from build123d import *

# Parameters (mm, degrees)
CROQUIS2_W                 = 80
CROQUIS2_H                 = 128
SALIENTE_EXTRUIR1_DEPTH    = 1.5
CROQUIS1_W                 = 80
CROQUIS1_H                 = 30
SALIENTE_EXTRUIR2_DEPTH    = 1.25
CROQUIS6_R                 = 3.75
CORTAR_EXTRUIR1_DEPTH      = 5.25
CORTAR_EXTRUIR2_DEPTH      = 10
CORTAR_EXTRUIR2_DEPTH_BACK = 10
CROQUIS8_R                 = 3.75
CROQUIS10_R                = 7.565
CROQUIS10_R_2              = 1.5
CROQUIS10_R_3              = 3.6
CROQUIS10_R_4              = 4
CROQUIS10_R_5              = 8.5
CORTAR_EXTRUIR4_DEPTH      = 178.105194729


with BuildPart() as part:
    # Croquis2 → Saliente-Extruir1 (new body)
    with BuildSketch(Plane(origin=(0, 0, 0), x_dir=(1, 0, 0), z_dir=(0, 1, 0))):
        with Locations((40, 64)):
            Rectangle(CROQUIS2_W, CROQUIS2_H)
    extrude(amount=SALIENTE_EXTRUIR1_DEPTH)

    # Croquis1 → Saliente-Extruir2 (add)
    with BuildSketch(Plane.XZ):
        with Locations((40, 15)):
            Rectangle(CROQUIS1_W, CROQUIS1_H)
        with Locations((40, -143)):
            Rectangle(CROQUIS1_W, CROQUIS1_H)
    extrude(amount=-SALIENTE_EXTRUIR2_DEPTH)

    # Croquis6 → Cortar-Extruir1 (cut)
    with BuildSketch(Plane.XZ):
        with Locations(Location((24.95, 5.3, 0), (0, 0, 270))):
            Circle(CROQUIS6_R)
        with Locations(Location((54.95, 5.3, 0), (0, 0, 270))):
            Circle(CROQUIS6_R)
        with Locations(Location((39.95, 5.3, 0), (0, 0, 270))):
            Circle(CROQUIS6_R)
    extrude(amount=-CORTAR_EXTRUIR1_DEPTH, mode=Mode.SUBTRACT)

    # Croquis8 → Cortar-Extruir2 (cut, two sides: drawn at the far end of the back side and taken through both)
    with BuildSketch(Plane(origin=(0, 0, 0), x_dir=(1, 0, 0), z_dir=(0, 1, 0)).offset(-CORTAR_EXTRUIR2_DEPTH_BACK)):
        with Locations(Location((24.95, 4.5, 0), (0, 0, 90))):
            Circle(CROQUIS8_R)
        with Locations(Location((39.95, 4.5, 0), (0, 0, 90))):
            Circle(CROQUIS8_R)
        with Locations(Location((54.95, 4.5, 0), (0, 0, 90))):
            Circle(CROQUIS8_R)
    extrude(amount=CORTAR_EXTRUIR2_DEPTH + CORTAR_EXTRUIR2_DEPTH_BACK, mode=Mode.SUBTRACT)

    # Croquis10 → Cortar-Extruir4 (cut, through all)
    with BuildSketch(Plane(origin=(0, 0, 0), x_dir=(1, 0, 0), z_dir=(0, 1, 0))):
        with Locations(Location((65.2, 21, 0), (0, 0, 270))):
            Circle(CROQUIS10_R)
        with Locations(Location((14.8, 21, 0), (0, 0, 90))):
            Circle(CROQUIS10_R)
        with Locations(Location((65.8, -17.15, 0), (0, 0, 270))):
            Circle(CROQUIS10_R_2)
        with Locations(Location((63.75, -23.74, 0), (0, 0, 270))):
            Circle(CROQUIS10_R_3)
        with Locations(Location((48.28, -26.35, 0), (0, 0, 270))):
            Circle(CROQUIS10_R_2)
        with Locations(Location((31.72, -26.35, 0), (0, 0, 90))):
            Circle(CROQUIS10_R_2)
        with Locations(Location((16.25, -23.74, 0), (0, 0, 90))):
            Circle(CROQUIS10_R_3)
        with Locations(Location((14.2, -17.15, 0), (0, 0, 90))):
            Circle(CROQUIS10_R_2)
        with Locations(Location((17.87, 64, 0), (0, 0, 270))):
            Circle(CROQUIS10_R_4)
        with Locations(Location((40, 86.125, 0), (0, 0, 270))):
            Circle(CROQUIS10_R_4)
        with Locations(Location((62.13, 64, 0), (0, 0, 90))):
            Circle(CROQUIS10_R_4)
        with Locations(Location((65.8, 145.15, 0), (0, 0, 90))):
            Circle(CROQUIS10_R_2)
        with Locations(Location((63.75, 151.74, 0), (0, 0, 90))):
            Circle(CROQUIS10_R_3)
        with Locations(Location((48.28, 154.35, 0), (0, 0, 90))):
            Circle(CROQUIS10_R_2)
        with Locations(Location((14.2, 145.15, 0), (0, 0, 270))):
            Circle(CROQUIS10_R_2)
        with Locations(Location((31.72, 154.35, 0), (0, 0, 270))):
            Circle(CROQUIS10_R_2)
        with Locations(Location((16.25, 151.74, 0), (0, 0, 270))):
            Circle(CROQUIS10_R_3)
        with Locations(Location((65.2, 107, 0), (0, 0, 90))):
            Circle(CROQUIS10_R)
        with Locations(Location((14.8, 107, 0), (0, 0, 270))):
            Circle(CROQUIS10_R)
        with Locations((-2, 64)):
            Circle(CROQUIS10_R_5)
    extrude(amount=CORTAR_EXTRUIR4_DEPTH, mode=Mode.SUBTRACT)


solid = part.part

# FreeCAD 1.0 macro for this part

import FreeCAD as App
import Part
import Sketcher

doc = App.newDocument("Part")
body = doc.addObject("PartDesign::Body", "Body")

sketch1 = body.newObject("Sketcher::SketchObject", "Sketch")
sketch1.AttachmentSupport = (doc.getObject("XZ_Plane"), [""])
sketch1.MapMode = "FlatFace"
sketch1.addGeometry([
    Part.LineSegment(App.Vector(0, -128, 0), App.Vector(0, 0, 0)),
    Part.LineSegment(App.Vector(0, 0, 0), App.Vector(80, 0, 0)),
    Part.LineSegment(App.Vector(80, 0, 0), App.Vector(80, -128, 0)),
    Part.LineSegment(App.Vector(80, -128, 0), App.Vector(0, -128, 0)),
], False)
sketch1.addConstraint([
    Sketcher.Constraint("Coincident", 0, 2, 1, 1),
    Sketcher.Constraint("Coincident", 1, 2, 2, 1),
    Sketcher.Constraint("Coincident", 2, 2, 3, 1),
    Sketcher.Constraint("Coincident", 3, 2, 0, 1),
    Sketcher.Constraint("Vertical", 0),
    Sketcher.Constraint("Horizontal", 1),
    Sketcher.Constraint("Vertical", 2),
    Sketcher.Constraint("Horizontal", 3),
    Sketcher.Constraint("Coincident", 0, 2, -1, 1),
    Sketcher.Constraint("DistanceX", 1, 1, 1, 2, 80.0),
    Sketcher.Constraint("DistanceY", 0, 1, 0, 2, 128.0),
])
pad1 = body.newObject("PartDesign::Pad", "Pad")
pad1.Profile = sketch1
pad1.Length = 1.5
pad1.Reversed = True

sketch2 = body.newObject("Sketcher::SketchObject", "Sketch001")
sketch2.AttachmentSupport = (doc.getObject("XZ_Plane"), [""])
sketch2.MapMode = "FlatFace"
sketch2.addGeometry([
    Part.LineSegment(App.Vector(0, 30, 0), App.Vector(0, 0, 0)),
    Part.LineSegment(App.Vector(0, 0, 0), App.Vector(80, 0, 0)),
    Part.LineSegment(App.Vector(80, 0, 0), App.Vector(80, 30, 0)),
    Part.LineSegment(App.Vector(80, 30, 0), App.Vector(0, 30, 0)),
    Part.LineSegment(App.Vector(0, -128, 0), App.Vector(0, -158, 0)),
    Part.LineSegment(App.Vector(0, -158, 0), App.Vector(80, -158, 0)),
    Part.LineSegment(App.Vector(80, -158, 0), App.Vector(80, -128, 0)),
    Part.LineSegment(App.Vector(80, -128, 0), App.Vector(0, -128, 0)),
], False)
sketch2.addConstraint([
    Sketcher.Constraint("Coincident", 0, 2, 1, 1),
    Sketcher.Constraint("Coincident", 1, 2, 2, 1),
    Sketcher.Constraint("Coincident", 2, 2, 3, 1),
    Sketcher.Constraint("Coincident", 3, 2, 0, 1),
    Sketcher.Constraint("Coincident", 4, 2, 5, 1),
    Sketcher.Constraint("Coincident", 5, 2, 6, 1),
    Sketcher.Constraint("Coincident", 6, 2, 7, 1),
    Sketcher.Constraint("Coincident", 7, 2, 4, 1),
    Sketcher.Constraint("Vertical", 0),
    Sketcher.Constraint("Horizontal", 1),
    Sketcher.Constraint("Vertical", 2),
    Sketcher.Constraint("Horizontal", 3),
    Sketcher.Constraint("Vertical", 4),
    Sketcher.Constraint("Horizontal", 5),
    Sketcher.Constraint("Vertical", 6),
    Sketcher.Constraint("Horizontal", 7),
    Sketcher.Constraint("Coincident", 0, 2, -1, 1),
    Sketcher.Constraint("PointOnObject", 4, 2, -2),
    Sketcher.Constraint("Vertical", 2, 2, 5, 2),
    Sketcher.Constraint("Equal", 2, 4),
    Sketcher.Constraint("DistanceX", 1, 1, 1, 2, 80.0),
    Sketcher.Constraint("DistanceY", 0, 2, 0, 1, 30.0),
    Sketcher.Constraint("DistanceY", 4, 2, -1, 1, 158.0),
])
pad2 = body.newObject("PartDesign::Pad", "Pad001")
pad2.Profile = sketch2
pad2.Length = 1.25
pad2.Reversed = True

sketch3 = body.newObject("Sketcher::SketchObject", "Sketch002")
sketch3.AttachmentSupport = (doc.getObject("XZ_Plane"), [""])
sketch3.MapMode = "FlatFace"
sketch3.addGeometry([
    Part.Circle(App.Vector(24.9, 5.3, 0), App.Vector(0, 0, 1), 3.8),
    Part.Circle(App.Vector(55, 5.3, 0), App.Vector(0, 0, 1), 3.8),
    Part.Circle(App.Vector(40, 5.3, 0), App.Vector(0, 0, 1), 3.8),
], False)
sketch3.addConstraint([
    Sketcher.Constraint("Equal", 0, 1),
    Sketcher.Constraint("Equal", 1, 2),
    Sketcher.Constraint("Horizontal", 0, 3, 1, 3),
    Sketcher.Constraint("Horizontal", 1, 3, 2, 3),
    Sketcher.Constraint("Diameter", 0, 7.5),
    Sketcher.Constraint("DistanceX", 0, 3, 1, 3, 30.0),
    Sketcher.Constraint("DistanceX", 2, 3, 1, 3, 15.0),
    Sketcher.Constraint("DistanceY", -1, 1, 0, 3, 5.3),
    Sketcher.Constraint("DistanceX", -1, 1, 0, 3, 24.95),
])
pocket1 = body.newObject("PartDesign::Pocket", "Pocket")
pocket1.Profile = sketch3
pocket1.Length = 5.25

sketch4 = body.newObject("Sketcher::SketchObject", "Sketch003")
sketch4.AttachmentSupport = (doc.getObject("XZ_Plane"), [""])
sketch4.MapMode = "FlatFace"
sketch4.addGeometry([
    Part.Circle(App.Vector(24.9, -4.5, 0), App.Vector(0, 0, 1), 3.8),
    Part.Circle(App.Vector(40, -4.5, 0), App.Vector(0, 0, 1), 3.8),
    Part.Circle(App.Vector(55, -4.5, 0), App.Vector(0, 0, 1), 3.8),
], False)
sketch4.addConstraint([
    Sketcher.Constraint("Equal", 0, 1),
    Sketcher.Constraint("Equal", 1, 2),
    Sketcher.Constraint("Horizontal", 0, 3, 1, 3),
    Sketcher.Constraint("Horizontal", 1, 3, 2, 3),
    Sketcher.Constraint("Diameter", 0, 7.5),
    Sketcher.Constraint("DistanceX", 0, 3, 1, 3, 15.0),
    Sketcher.Constraint("DistanceX", 1, 3, 2, 3, 15.0),
    Sketcher.Constraint("DistanceY", 0, 3, -1, 1, 4.5),
    Sketcher.Constraint("DistanceX", -1, 1, 0, 3, 24.95),
])
pocket2 = body.newObject("PartDesign::Pocket", "Pocket001")
pocket2.Profile = sketch4
pocket2.Type = "ThroughAll"
pocket2.Midplane = True

sketch5 = body.newObject("Sketcher::SketchObject", "Sketch004")
sketch5.AttachmentSupport = (doc.getObject("XZ_Plane"), [""])
sketch5.MapMode = "FlatFace"
sketch5.addGeometry([
    Part.Circle(App.Vector(65.2, -21, 0), App.Vector(0, 0, 1), 7.6),
    Part.Circle(App.Vector(14.8, -21, 0), App.Vector(0, 0, 1), 7.6),
    Part.Circle(App.Vector(65.8, 17.1, 0), App.Vector(0, 0, 1), 1.5),
    Part.Circle(App.Vector(63.8, 23.7, 0), App.Vector(0, 0, 1), 3.6),
    Part.Circle(App.Vector(48.3, 26.4, 0), App.Vector(0, 0, 1), 1.5),
    Part.Circle(App.Vector(31.7, 26.4, 0), App.Vector(0, 0, 1), 1.5),
    Part.Circle(App.Vector(16.2, 23.7, 0), App.Vector(0, 0, 1), 3.6),
    Part.Circle(App.Vector(14.2, 17.1, 0), App.Vector(0, 0, 1), 1.5),
    Part.Circle(App.Vector(17.9, -64, 0), App.Vector(0, 0, 1), 4),
    Part.Circle(App.Vector(40, -86.1, 0), App.Vector(0, 0, 1), 4),
    Part.Circle(App.Vector(62.1, -64, 0), App.Vector(0, 0, 1), 4),
    Part.Circle(App.Vector(65.8, -145.2, 0), App.Vector(0, 0, 1), 1.5),
    Part.Circle(App.Vector(63.8, -151.7, 0), App.Vector(0, 0, 1), 3.6),
    Part.Circle(App.Vector(48.3, -154.3, 0), App.Vector(0, 0, 1), 1.5),
    Part.Circle(App.Vector(14.2, -145.2, 0), App.Vector(0, 0, 1), 1.5),
    Part.Circle(App.Vector(31.7, -154.3, 0), App.Vector(0, 0, 1), 1.5),
    Part.Circle(App.Vector(16.2, -151.7, 0), App.Vector(0, 0, 1), 3.6),
    Part.Circle(App.Vector(65.2, -107, 0), App.Vector(0, 0, 1), 7.6),
    Part.Circle(App.Vector(14.8, -107, 0), App.Vector(0, 0, 1), 7.6),
    Part.Circle(App.Vector(-2, -64, 0), App.Vector(0, 0, 1), 8.5),
], False)
sketch5.addConstraint([
    Sketcher.Constraint("Equal", 0, 1),
    Sketcher.Constraint("Equal", 2, 4),
    Sketcher.Constraint("Equal", 4, 5),
    Sketcher.Constraint("Equal", 3, 6),
    Sketcher.Constraint("Equal", 5, 7),
    Sketcher.Constraint("Equal", 8, 9),
    Sketcher.Constraint("Equal", 9, 10),
    Sketcher.Constraint("Equal", 7, 11),
    Sketcher.Constraint("Equal", 6, 12),
    Sketcher.Constraint("Equal", 11, 13),
    Sketcher.Constraint("Equal", 13, 14),
    Sketcher.Constraint("Equal", 14, 15),
    Sketcher.Constraint("Equal", 12, 16),
    Sketcher.Constraint("Equal", 1, 17),
    Sketcher.Constraint("Equal", 17, 18),
    Sketcher.Constraint("Horizontal", 0, 3, 1, 3),
    Sketcher.Constraint("Horizontal", 4, 3, 5, 3),
    Sketcher.Constraint("Horizontal", 3, 3, 6, 3),
    Sketcher.Constraint("Horizontal", 2, 3, 7, 3),
    Sketcher.Constraint("Horizontal", 8, 3, 10, 3),
    Sketcher.Constraint("Horizontal", 11, 3, 14, 3),
    Sketcher.Constraint("Horizontal", 13, 3, 15, 3),
    Sketcher.Constraint("Horizontal", 12, 3, 16, 3),
    Sketcher.Constraint("Horizontal", 17, 3, 18, 3),
    Sketcher.Constraint("Horizontal", 10, 3, 19, 3),
    Sketcher.Constraint("Vertical", 2, 3, 11, 3),
    Sketcher.Constraint("Vertical", 3, 3, 12, 3),
    Sketcher.Constraint("Vertical", 4, 3, 13, 3),
    Sketcher.Constraint("Vertical", 7, 3, 14, 3),
    Sketcher.Constraint("Vertical", 5, 3, 15, 3),
    Sketcher.Constraint("Vertical", 6, 3, 16, 3),
    Sketcher.Constraint("Vertical", 0, 3, 17, 3),
    Sketcher.Constraint("Vertical", 1, 3, 18, 3),
    Sketcher.Constraint("Diameter", 2, 3.0),
    Sketcher.Constraint("Diameter", 8, 8.0),
    Sketcher.Constraint("Diameter", 19, 17.0),
    Sketcher.Constraint("Diameter", 3, 7.2),
    Sketcher.Constraint("Diameter", 0, 15.13),
    Sketcher.Constraint("DistanceY", 0, 3, -1, 1, 21.0),
    Sketcher.Constraint("DistanceY", 8, 3, -1, 1, 64.0),
    Sketcher.Constraint("DistanceX", -1, 1, 9, 3, 40.0),
    Sketcher.Constraint("DistanceY", 17, 3, -1, 1, 107.0),
    Sketcher.Constraint("DistanceX", 19, 3, -1, 1, 2.0),
    Sketcher.Constraint("DistanceX", 1, 3, 2, 3, 51.0),
    Sketcher.Constraint("DistanceX", -1, 1, 0, 3, 65.2),
    Sketcher.Constraint("DistanceX", -1, 1, 1, 3, 14.8),
    Sketcher.Constraint("DistanceX", -1, 1, 7, 3, 14.2),
    Sketcher.Constraint("DistanceY", 2, 3, 4, 3, 9.2),
    Sketcher.Constraint("DistanceX", 6, 3, 3, 3, 47.5),
    Sketcher.Constraint("DistanceY", 13, 3, 11, 3, 9.2),
    Sketcher.Constraint("DistanceY", -1, 1, 2, 3, 17.15),
    Sketcher.Constraint("DistanceX", -1, 1, 3, 3, 63.75),
    Sketcher.Constraint("DistanceY", -1, 1, 3, 3, 23.74),
    Sketcher.Constraint("DistanceX", -1, 1, 4, 3, 48.28),
    Sketcher.Constraint("DistanceX", -1, 1, 5, 3, 31.72),
    Sketcher.Constraint("DistanceX", -1, 1, 8, 3, 17.87),
    Sketcher.Constraint("DistanceX", -1, 1, 10, 3, 62.13),
    Sketcher.Constraint("DistanceY", 11, 3, -1, 1, 145.15),
    Sketcher.Constraint("DistanceY", 12, 3, -1, 1, 151.74),
    Sketcher.Constraint("DistanceY", 9, 3, -1, 1, 86.125),
])
pocket3 = body.newObject("PartDesign::Pocket", "Pocket002")
pocket3.Profile = sketch5
pocket3.Type = "ThroughAll"

doc.recompute()
